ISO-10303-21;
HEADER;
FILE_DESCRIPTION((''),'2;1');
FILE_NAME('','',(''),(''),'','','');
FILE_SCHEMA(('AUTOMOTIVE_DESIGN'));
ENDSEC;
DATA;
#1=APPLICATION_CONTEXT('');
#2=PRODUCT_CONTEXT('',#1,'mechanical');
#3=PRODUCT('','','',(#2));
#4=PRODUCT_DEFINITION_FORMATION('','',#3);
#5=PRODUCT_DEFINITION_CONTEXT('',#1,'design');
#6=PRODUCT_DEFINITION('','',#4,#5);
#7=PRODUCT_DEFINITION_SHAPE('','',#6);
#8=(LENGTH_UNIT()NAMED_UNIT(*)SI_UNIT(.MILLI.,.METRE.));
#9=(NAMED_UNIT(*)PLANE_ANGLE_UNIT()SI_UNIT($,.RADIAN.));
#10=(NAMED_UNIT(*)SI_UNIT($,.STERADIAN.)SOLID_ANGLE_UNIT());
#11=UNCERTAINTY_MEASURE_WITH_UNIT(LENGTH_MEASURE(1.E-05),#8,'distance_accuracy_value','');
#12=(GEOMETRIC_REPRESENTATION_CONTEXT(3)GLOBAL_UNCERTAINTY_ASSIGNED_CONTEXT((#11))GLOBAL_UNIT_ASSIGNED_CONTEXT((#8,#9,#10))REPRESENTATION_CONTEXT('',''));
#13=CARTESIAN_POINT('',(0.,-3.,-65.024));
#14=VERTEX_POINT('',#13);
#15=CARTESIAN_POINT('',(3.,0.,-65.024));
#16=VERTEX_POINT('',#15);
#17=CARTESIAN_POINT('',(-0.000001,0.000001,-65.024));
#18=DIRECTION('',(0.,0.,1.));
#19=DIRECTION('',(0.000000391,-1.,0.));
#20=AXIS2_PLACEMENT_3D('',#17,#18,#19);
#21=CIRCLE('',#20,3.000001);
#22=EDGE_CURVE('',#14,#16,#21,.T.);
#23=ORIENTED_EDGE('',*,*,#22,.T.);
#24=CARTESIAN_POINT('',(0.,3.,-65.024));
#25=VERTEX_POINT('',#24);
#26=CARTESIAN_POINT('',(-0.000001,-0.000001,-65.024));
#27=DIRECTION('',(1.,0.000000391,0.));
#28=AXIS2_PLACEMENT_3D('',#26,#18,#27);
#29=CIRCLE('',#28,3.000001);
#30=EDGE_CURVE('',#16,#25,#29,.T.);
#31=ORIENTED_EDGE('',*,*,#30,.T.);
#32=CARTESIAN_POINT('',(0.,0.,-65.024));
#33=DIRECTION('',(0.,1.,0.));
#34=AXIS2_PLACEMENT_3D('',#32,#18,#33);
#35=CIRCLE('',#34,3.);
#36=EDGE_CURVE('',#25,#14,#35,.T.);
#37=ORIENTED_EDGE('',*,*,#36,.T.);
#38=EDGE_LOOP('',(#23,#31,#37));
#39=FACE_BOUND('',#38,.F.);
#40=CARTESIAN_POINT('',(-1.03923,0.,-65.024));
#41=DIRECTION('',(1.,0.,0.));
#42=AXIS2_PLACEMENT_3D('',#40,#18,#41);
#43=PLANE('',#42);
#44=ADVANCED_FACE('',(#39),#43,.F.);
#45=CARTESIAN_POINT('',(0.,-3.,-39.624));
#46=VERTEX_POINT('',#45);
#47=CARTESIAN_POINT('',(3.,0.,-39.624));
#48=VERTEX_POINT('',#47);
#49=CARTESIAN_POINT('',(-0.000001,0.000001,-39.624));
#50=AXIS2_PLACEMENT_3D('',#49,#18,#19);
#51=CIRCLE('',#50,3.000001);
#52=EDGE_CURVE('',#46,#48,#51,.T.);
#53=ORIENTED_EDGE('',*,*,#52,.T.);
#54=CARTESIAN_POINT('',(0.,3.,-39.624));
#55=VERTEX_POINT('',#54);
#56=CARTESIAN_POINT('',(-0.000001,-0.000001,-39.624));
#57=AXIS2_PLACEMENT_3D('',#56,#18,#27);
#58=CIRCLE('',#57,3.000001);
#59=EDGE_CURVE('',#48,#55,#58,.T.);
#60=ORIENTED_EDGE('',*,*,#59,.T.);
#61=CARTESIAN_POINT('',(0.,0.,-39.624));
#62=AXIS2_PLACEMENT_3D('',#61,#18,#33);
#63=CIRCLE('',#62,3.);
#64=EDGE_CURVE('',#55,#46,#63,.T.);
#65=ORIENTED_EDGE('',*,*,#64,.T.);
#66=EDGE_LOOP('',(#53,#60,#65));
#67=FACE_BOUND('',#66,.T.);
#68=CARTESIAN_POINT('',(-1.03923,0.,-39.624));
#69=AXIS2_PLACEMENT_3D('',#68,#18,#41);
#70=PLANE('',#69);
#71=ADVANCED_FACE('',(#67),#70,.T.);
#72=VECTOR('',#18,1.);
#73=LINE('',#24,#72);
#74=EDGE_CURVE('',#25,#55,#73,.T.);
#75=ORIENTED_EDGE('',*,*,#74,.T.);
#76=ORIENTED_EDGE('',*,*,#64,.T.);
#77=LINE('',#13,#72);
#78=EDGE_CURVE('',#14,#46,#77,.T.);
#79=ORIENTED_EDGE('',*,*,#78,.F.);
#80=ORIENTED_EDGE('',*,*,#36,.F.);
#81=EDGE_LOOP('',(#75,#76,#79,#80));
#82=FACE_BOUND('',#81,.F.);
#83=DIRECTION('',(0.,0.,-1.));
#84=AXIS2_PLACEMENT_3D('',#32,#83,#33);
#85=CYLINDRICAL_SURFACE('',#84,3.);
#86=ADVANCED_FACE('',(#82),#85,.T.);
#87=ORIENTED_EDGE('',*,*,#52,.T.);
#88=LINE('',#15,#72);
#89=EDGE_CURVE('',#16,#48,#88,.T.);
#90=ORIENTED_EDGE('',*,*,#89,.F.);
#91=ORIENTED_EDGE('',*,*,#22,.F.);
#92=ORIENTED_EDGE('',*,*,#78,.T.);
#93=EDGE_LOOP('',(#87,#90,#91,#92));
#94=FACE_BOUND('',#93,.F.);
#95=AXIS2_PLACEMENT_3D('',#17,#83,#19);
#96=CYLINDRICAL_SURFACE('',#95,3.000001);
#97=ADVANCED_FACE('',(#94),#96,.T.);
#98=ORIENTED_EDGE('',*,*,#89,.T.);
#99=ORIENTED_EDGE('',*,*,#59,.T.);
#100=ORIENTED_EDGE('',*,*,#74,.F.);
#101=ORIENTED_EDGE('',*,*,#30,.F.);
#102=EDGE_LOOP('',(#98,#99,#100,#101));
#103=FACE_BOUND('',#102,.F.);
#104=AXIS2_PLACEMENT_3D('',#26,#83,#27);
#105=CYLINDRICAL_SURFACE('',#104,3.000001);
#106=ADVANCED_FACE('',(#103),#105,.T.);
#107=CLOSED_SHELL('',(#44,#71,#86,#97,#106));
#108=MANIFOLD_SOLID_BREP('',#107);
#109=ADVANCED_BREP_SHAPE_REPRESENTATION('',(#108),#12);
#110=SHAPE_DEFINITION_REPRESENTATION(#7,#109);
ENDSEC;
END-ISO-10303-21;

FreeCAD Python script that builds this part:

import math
import FreeCAD as App
import Part
import Sketcher
from FreeCAD import Vector

doc = App.newDocument("Part")
params = doc.addObject("Spreadsheet::Sheet", "Params")
for row, (alias, value) in enumerate([
    ("sketch1_radius", "3 mm"),
    ("pad1_length", "25.4 mm"),
], start=1):
    params.set(f"A{row}", alias)
    params.set(f"B{row}", "=" + value)
    params.setAlias(f"B{row}", alias)

body = doc.addObject("PartDesign::Body", "Body")

# Sketch on XY plane
sketch1 = body.newObject("Sketcher::SketchObject", "Sketch")
sketch1.AttachmentSupport = (doc.getObject("XY_Plane"), [""])
sketch1.MapMode = "FlatFace"
sketch1.addGeometry([
    Part.ArcOfCircle(Part.Circle(Vector(0, 0, 0), Vector(0, 0, 1), 3), math.radians(90), math.radians(270)),
    Part.ArcOfCircle(Part.Circle(Vector(0, 0, 0), Vector(0, 0, 1), 3), math.radians(-90), math.radians(0)),
    Part.ArcOfCircle(Part.Circle(Vector(0, 0, 0), Vector(0, 0, 1), 3), math.radians(0), math.radians(90)),
], False)
sketch1.addConstraint([
    Sketcher.Constraint("Tangent", 0, 2, 1, 1),
    Sketcher.Constraint("Tangent", 1, 2, 2, 1),
    Sketcher.Constraint("Tangent", 2, 2, 0, 1),
    Sketcher.Constraint("Coincident", 0, 3, -1, 1),
    Sketcher.Constraint("PointOnObject", 0, 2, -2),
    Sketcher.Constraint("PointOnObject", 1, 2, -1),
    Sketcher.Constraint("PointOnObject", 2, 2, -2),
    Sketcher.Constraint("Radius", 0, 3.0),
])
sketch1.setExpression("Constraints[7]", "Params.sketch1_radius")
pad1 = body.newObject("PartDesign::Pad", "Pad")
pad1.Profile = sketch1
pad1.setExpression("Length", "Params.pad1_length")
body2 = doc.addObject("PartDesign::Body", "Body001")
doc.recompute()

body.Placement = App.Placement(Vector(0, 0, -65.024), App.Rotation(Vector(0, 0, 1), 0))
boolean = body2.newObject("PartDesign::Boolean", "Boolean")
boolean.Type = "Fuse"
boolean.addObjects([body])

doc.recompute()
